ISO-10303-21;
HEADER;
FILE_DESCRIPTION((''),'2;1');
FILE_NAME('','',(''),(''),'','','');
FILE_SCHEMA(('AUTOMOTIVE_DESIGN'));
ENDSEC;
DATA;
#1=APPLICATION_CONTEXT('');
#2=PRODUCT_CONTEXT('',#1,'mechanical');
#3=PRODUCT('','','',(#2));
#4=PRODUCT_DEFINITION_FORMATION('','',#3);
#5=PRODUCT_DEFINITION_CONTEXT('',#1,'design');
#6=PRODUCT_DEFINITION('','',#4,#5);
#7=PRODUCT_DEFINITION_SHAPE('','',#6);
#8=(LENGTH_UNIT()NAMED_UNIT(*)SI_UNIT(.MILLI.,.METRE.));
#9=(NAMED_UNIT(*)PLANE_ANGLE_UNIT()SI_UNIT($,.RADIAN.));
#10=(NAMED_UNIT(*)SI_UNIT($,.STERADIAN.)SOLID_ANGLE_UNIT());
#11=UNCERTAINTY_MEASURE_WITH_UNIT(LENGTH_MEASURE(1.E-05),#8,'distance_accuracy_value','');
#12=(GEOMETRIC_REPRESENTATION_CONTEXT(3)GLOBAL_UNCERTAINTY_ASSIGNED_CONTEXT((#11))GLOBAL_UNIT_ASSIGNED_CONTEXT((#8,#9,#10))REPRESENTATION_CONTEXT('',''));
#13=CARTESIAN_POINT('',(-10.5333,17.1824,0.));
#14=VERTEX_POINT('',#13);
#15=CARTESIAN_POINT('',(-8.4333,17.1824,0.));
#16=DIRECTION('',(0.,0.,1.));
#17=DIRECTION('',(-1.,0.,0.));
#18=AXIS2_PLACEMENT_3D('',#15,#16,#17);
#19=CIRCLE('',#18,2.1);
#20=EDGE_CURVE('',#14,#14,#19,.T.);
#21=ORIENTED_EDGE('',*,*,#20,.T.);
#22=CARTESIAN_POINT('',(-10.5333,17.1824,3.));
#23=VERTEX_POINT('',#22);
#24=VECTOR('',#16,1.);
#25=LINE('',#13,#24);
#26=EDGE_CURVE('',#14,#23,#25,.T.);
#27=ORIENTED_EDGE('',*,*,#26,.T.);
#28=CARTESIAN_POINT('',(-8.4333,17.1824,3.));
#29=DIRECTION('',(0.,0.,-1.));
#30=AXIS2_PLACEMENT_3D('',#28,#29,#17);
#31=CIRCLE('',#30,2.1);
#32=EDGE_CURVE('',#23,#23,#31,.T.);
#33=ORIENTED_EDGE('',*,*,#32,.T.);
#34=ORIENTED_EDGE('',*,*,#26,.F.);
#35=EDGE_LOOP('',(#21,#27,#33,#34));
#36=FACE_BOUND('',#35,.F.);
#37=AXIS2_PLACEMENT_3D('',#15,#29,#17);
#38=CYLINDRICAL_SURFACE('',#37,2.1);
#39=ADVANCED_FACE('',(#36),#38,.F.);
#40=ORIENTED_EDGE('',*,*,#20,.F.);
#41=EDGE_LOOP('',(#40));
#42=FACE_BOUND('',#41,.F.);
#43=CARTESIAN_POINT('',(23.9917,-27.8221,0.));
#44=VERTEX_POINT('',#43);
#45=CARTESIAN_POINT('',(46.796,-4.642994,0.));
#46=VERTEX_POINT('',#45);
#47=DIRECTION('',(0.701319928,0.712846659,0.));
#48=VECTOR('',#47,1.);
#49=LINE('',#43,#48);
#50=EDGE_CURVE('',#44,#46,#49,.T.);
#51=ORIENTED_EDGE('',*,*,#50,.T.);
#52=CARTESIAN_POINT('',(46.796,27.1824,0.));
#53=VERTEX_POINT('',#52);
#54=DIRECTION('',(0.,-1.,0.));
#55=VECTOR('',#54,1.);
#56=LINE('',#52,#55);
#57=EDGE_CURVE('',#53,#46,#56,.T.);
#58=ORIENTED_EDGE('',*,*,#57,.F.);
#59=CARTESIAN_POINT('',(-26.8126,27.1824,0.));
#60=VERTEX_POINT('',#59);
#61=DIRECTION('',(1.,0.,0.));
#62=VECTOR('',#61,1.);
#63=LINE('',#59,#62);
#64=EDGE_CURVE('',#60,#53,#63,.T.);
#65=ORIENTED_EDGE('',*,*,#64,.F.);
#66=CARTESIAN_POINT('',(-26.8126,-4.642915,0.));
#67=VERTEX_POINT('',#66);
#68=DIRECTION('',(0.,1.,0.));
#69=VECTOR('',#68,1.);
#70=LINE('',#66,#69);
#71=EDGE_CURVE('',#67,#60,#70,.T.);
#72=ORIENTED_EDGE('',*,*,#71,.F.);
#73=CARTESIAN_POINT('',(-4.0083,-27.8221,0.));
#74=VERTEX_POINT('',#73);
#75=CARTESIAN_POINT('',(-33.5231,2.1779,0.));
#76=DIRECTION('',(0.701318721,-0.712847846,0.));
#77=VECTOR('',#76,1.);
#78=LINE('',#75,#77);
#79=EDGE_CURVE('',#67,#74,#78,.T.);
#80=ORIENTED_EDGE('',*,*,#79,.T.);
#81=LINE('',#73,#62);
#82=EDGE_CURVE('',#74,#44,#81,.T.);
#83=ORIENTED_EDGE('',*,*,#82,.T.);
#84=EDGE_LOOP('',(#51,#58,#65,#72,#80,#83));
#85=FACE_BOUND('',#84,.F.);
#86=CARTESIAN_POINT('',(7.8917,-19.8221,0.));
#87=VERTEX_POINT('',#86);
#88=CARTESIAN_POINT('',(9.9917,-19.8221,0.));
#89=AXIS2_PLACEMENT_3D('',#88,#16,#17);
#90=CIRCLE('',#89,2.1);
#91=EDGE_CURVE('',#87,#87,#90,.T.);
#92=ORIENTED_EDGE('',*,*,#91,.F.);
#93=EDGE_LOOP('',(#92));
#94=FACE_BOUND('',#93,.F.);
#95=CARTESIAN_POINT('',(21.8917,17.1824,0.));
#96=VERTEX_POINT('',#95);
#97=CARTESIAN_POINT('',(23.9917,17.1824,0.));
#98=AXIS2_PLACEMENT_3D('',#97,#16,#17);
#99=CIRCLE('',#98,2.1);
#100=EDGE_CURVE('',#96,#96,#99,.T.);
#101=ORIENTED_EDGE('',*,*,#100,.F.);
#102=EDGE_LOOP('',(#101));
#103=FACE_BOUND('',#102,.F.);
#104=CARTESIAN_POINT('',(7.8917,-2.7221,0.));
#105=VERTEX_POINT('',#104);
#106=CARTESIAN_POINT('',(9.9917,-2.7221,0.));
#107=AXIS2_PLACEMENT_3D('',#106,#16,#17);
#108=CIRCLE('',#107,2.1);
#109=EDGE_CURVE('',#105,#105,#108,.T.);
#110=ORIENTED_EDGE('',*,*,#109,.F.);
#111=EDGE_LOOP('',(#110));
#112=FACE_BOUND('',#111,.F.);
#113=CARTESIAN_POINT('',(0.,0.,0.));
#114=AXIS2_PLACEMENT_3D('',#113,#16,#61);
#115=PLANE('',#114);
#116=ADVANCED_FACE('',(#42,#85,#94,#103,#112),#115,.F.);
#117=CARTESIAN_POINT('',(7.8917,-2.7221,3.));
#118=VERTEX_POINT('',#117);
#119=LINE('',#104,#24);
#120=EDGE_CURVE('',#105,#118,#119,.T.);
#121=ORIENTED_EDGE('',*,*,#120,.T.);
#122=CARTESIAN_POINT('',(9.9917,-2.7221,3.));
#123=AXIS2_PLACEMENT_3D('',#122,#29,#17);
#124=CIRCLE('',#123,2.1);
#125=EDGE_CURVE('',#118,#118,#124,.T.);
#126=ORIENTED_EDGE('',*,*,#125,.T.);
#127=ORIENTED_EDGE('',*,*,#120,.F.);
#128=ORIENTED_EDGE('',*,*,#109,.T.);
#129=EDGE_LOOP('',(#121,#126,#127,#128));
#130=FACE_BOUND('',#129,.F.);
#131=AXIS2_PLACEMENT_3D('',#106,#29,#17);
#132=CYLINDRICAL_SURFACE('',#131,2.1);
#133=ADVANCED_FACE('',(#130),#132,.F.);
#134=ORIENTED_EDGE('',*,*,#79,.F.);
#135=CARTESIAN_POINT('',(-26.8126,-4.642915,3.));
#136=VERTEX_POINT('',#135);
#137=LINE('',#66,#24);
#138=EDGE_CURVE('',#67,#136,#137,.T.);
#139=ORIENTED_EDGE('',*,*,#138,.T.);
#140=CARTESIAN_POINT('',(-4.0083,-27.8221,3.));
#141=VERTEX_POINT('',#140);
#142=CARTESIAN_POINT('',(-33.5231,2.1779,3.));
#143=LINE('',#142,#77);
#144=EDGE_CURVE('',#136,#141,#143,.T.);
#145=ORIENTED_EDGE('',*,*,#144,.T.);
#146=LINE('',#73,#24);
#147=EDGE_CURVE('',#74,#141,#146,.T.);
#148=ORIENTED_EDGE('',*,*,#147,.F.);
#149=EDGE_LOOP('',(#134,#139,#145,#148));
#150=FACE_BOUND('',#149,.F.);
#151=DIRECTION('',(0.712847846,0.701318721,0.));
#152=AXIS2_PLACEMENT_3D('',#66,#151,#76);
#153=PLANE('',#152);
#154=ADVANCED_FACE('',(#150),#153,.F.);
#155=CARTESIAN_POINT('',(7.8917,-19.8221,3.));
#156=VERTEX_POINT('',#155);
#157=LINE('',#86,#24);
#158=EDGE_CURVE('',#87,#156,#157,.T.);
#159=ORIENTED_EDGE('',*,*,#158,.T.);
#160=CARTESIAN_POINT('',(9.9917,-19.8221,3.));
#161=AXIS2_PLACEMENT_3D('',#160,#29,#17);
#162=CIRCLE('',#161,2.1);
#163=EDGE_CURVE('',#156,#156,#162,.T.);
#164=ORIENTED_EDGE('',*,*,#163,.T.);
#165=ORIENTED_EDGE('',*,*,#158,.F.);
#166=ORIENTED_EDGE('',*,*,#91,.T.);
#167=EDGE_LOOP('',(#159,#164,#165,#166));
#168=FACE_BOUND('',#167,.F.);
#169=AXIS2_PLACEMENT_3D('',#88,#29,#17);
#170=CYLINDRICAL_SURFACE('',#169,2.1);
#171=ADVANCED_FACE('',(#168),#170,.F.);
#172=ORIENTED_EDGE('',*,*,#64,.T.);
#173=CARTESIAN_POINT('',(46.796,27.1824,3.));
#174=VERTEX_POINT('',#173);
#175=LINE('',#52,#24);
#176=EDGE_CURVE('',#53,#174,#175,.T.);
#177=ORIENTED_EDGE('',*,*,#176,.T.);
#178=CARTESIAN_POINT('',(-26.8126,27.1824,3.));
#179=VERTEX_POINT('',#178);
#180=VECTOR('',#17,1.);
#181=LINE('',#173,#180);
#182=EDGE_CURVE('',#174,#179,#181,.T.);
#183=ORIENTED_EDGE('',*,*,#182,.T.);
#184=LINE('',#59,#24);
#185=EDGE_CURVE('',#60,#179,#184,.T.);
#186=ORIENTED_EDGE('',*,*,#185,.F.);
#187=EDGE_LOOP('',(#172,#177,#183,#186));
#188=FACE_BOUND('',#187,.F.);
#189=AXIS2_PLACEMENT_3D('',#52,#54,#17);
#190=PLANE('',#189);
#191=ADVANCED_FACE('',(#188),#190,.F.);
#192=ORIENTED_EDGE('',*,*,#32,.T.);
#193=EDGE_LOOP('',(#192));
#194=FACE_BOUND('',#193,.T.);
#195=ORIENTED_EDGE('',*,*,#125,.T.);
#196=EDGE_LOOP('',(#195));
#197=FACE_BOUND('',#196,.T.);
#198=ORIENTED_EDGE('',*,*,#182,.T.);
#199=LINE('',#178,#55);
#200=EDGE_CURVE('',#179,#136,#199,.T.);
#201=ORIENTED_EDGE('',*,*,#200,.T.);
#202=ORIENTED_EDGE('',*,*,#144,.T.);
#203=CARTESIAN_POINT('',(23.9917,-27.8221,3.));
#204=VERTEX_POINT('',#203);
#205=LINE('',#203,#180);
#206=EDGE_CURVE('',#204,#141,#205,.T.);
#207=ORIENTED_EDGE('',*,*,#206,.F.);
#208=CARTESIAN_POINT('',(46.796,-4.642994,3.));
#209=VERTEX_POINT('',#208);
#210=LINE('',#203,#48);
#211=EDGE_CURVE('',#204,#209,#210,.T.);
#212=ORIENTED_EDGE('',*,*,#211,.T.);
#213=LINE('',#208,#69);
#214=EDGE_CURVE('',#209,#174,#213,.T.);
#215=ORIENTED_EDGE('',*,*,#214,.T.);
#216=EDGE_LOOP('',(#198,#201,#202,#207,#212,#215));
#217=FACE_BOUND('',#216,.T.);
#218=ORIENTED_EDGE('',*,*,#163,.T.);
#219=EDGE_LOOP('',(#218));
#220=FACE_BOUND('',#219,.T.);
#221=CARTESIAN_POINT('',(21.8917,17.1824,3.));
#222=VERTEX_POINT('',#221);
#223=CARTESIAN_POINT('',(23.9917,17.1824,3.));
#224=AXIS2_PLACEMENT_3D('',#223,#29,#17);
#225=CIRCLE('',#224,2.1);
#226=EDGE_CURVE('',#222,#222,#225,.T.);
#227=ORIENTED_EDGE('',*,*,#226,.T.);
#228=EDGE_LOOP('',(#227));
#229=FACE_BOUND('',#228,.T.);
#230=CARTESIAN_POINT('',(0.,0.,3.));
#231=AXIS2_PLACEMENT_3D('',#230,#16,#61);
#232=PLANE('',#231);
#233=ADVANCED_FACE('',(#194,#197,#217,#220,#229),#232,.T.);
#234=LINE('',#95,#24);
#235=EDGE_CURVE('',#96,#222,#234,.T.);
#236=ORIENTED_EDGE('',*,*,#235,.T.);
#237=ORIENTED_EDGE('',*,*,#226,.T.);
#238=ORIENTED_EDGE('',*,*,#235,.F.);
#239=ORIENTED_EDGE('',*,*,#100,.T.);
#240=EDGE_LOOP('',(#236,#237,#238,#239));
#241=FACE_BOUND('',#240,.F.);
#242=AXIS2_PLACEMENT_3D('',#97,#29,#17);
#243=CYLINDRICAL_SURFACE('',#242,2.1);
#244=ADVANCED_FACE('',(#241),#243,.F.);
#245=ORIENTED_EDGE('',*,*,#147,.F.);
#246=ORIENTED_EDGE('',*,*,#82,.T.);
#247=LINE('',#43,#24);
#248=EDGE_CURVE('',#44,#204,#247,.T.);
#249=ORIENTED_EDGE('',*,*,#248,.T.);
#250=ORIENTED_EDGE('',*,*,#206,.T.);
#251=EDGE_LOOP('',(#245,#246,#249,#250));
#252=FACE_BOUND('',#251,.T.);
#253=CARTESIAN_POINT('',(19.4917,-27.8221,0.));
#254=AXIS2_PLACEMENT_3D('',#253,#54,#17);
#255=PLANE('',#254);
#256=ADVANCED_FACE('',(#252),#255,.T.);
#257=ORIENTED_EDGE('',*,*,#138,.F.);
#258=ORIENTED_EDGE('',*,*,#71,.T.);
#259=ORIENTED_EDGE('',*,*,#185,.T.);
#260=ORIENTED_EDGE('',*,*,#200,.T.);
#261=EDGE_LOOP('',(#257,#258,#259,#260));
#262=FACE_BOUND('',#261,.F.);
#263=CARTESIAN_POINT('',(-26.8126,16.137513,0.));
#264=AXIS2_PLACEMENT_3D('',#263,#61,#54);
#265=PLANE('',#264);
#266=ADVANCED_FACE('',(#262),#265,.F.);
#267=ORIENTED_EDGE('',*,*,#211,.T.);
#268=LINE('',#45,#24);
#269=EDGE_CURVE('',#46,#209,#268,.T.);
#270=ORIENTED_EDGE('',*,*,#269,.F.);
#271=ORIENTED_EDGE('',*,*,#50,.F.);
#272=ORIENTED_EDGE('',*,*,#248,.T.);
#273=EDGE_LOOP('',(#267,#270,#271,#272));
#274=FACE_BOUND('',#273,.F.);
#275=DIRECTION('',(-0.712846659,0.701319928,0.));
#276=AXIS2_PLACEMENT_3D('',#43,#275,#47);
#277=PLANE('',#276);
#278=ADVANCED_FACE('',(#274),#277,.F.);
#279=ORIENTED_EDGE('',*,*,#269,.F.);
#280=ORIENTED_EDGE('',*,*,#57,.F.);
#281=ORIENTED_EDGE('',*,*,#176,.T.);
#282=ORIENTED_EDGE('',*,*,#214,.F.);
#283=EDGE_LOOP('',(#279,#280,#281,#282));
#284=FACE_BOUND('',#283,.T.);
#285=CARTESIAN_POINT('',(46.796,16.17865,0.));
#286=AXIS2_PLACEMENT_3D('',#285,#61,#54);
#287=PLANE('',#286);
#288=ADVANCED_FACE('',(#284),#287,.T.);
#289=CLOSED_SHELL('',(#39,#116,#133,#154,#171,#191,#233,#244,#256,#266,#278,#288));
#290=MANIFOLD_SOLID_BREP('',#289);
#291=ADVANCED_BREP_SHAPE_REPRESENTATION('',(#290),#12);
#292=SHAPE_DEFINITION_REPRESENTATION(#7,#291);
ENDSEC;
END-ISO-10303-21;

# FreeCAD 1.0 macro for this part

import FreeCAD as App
import Part
import Sketcher


def add_polygon(sketch, points):
    """Adds a closed chain of lines whose ends are joined by coincident constraints."""
    first, n = sketch.GeometryCount, len(points)
    for a, b in zip(points, points[1:] + points[:1]):
        sketch.addGeometry(Part.LineSegment(App.Vector(*a, 0), App.Vector(*b, 0)), False)
    for i in range(n):
        sketch.addConstraint(Sketcher.Constraint("Coincident", first + i, 2, first + (i + 1) % n, 1))

doc = App.newDocument("Part")
body = doc.addObject("PartDesign::Body", "Body")

# Sketch on XY plane
sketch1 = body.newObject("Sketcher::SketchObject", "Sketch")
sketch1.AttachmentSupport = (doc.getObject("XY_Plane"), [""])
sketch1.MapMode = "FlatFace"
add_polygon(sketch1, [(24, -28), (47, -5), (47, 27), (-27, 27), (-27, -5), (-4, -28)])  # lines 0-5
sketch1.addConstraint([
    Sketcher.Constraint("Vertical", 1),
    Sketcher.Constraint("Horizontal", 2),
    Sketcher.Constraint("Vertical", 3),
    Sketcher.Constraint("Horizontal", 5),
    Sketcher.Constraint("Horizontal", 0, 2, 3, 2),
    Sketcher.Constraint("Equal", 0, 4),
    Sketcher.Constraint("DistanceX", 5, 1, 5, 2, 28.0),
    Sketcher.Constraint("DistanceX", 2, 2, 2, 1, 73.6086),
    Sketcher.Constraint("DistanceY", 1, 1, 1, 2, 31.8254),
    Sketcher.Constraint("DistanceX", -1, 1, 0, 2, 46.796),
    Sketcher.Constraint("DistanceY", 0, 2, -1, 1, 4.643),
    Sketcher.Constraint("DistanceY", 4, 2, -1, 1, 27.822),
])
pad1 = body.newObject("PartDesign::Pad", "Pad")
pad1.Profile = sketch1
pad1.Length = 3

# Sketch on XY plane
sketch2 = body.newObject("Sketcher::SketchObject", "Sketch001")
sketch2.AttachmentSupport = (doc.getObject("XY_Plane"), [""])
sketch2.MapMode = "FlatFace"
sketch2.addGeometry([
    Part.Circle(App.Vector(10, -19.8, 0), App.Vector(0, 0, 1), 2.1),
    Part.Circle(App.Vector(-8.4, 17.2, 0), App.Vector(0, 0, 1), 2.1),
    Part.Circle(App.Vector(10, -2.7, 0), App.Vector(0, 0, 1), 2.1),
    Part.Circle(App.Vector(24, 17.2, 0), App.Vector(0, 0, 1), 2.1),
], False)
sketch2.addConstraint([
    Sketcher.Constraint("Equal", 0, 1),
    Sketcher.Constraint("Equal", 1, 2),
    Sketcher.Constraint("Equal", 2, 3),
    Sketcher.Constraint("Horizontal", 1, 3, 3, 3),
    Sketcher.Constraint("Vertical", 0, 3, 2, 3),
    Sketcher.Constraint("Diameter", 0, 4.2),
    Sketcher.Constraint("DistanceX", 2, 3, 3, 3, 14.0),
    Sketcher.Constraint("DistanceY", 0, 3, 2, 3, 17.1),
    Sketcher.Constraint("DistanceY", 0, 3, -1, 1, 19.822),
    Sketcher.Constraint("DistanceX", 1, 3, 0, 3, 18.425),
    Sketcher.Constraint("DistanceX", -1, 1, 0, 3, 9.9917),
    Sketcher.Constraint("DistanceY", -1, 1, 1, 3, 17.1824),
])
pocket1 = body.newObject("PartDesign::Pocket", "Pocket")
pocket1.Profile = sketch2
pocket1.Length = 3
pocket1.Reversed = True

doc.recompute()
